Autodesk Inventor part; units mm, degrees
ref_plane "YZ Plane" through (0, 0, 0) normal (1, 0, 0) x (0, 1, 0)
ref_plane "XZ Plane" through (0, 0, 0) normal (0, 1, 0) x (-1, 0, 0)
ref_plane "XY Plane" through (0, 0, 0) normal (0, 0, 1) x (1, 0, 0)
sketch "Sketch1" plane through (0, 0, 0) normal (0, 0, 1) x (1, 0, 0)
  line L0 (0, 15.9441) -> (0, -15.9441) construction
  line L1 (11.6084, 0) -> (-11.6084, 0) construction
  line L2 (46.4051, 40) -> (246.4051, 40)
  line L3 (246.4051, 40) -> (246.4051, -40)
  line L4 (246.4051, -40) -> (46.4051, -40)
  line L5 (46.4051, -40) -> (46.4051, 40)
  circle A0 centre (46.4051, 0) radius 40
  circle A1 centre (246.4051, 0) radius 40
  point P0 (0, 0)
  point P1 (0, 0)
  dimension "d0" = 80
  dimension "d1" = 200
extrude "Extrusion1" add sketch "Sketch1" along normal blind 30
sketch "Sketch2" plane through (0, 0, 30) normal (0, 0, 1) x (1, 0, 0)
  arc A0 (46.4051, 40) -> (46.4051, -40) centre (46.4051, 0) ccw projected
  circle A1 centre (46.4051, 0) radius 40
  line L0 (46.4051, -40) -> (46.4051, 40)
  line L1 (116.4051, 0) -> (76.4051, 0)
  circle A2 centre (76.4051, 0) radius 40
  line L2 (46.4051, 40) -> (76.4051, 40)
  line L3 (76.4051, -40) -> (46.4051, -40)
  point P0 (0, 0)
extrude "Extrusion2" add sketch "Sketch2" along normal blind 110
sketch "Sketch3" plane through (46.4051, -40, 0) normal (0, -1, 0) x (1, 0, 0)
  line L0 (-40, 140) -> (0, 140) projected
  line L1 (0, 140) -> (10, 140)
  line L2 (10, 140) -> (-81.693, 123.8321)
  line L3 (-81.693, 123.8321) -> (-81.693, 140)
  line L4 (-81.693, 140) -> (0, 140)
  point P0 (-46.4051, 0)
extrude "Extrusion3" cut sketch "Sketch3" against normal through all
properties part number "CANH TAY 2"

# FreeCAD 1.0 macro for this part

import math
import FreeCAD as App
import Part
import Sketcher
from FreeCAD import Vector
Q = App.Units.Quantity


def add_polygon(sketch, points):
    """Adds a closed chain of lines whose ends are joined by coincident constraints."""
    first, n = sketch.GeometryCount, len(points)
    for a, b in zip(points, points[1:] + points[:1]):
        sketch.addGeometry(Part.LineSegment(App.Vector(*a, 0), App.Vector(*b, 0)), False)
    for i in range(n):
        sketch.addConstraint(Sketcher.Constraint("Coincident", first + i, 2, first + (i + 1) % n, 1))

doc = App.newDocument("Part")
body = doc.addObject("PartDesign::Body", "Body")

# Sketch on XY plane
sketch1 = body.newObject("Sketcher::SketchObject", "Sketch")
sketch1.AttachmentSupport = (doc.getObject("XY_Plane"), [""])
sketch1.MapMode = "FlatFace"
sketch1.addGeometry(Part.LineSegment(Vector(246, 40, 0), Vector(46, 40, 0)), False)
sketch1.addGeometry(Part.ArcOfCircle(Part.Circle(Vector(46, 0, 0), Vector(0, 0, 1), 40), math.radians(90), math.radians(270)), False)
sketch1.addGeometry(Part.LineSegment(Vector(46, -40, 0), Vector(246, -40, 0)), False)
sketch1.addGeometry(Part.ArcOfCircle(Part.Circle(Vector(246, 0, 0), Vector(0, 0, 1), 40), math.radians(-90), math.radians(90)), False)
sketch1.addConstraint(Sketcher.Constraint("Tangent", 0, 2, 1, 1))
sketch1.addConstraint(Sketcher.Constraint("Tangent", 1, 2, 2, 1))
sketch1.addConstraint(Sketcher.Constraint("Tangent", 2, 2, 3, 1))
sketch1.addConstraint(Sketcher.Constraint("Tangent", 3, 2, 0, 1))
sketch1.addConstraint(Sketcher.Constraint("Horizontal", 0))
sketch1.addConstraint(Sketcher.Constraint("Horizontal", 2))
sketch1.addConstraint(Sketcher.Constraint("PointOnObject", 1, 3, -1))
sketch1.addConstraint(Sketcher.Constraint("Radius", 1, 40.0))
sketch1.addConstraint(Sketcher.Constraint("DistanceX", 0, 2, 0, 1, 200.0))
sketch1.addConstraint(Sketcher.Constraint("DistanceX", -1, 1, 1, 3, 46.405))
pad1 = body.newObject("PartDesign::Pad", "Pad")
pad1.Profile = sketch1
pad1.Length = 30

# Sketch on XY plane
sketch2 = body.newObject("Sketcher::SketchObject", "Sketch001")
sketch2.AttachmentSupport = (doc.getObject("XY_Plane"), [""])
sketch2.MapMode = "FlatFace"
sketch2.AttachmentOffset = App.Placement(Vector(0, 0, 30), App.Rotation())
sketch2.addGeometry(Part.ArcOfCircle(Part.Circle(Vector(46, 0, 0), Vector(0, 0, 1), 40), math.radians(90), math.radians(270)), False)
sketch2.addGeometry(Part.LineSegment(Vector(46, -40, 0), Vector(76, -40, 0)), False)
sketch2.addGeometry(Part.ArcOfCircle(Part.Circle(Vector(76, 0, 0), Vector(0, 0, 1), 40), math.radians(-90), math.radians(90)), False)
sketch2.addGeometry(Part.LineSegment(Vector(76, 40, 0), Vector(46, 40, 0)), False)
sketch2.addConstraint(Sketcher.Constraint("Tangent", 0, 2, 1, 1))
sketch2.addConstraint(Sketcher.Constraint("Tangent", 1, 2, 2, 1))
sketch2.addConstraint(Sketcher.Constraint("Tangent", 2, 2, 3, 1))
sketch2.addConstraint(Sketcher.Constraint("Tangent", 3, 2, 0, 1))
sketch2.addConstraint(Sketcher.Constraint("Horizontal", 1))
sketch2.addConstraint(Sketcher.Constraint("Horizontal", 3))
sketch2.addConstraint(Sketcher.Constraint("PointOnObject", 0, 3, -1))
sketch2.addConstraint(Sketcher.Constraint("Radius", 0, 40.0))
sketch2.addConstraint(Sketcher.Constraint("DistanceX", 1, 1, 1, 2, 30.0))
sketch2.addConstraint(Sketcher.Constraint("DistanceX", -1, 1, 0, 3, 46.405))
pad2 = body.newObject("PartDesign::Pad", "Pad001")
pad2.Profile = sketch2
pad2.Length = 110

# Sketch on XZ plane
sketch3 = body.newObject("Sketcher::SketchObject", "Sketch002")
sketch3.AttachmentSupport = (doc.getObject("XZ_Plane"), [""])
sketch3.MapMode = "FlatFace"
sketch3.AttachmentOffset = App.Placement(Vector(0, 0, 40), App.Rotation())
add_polygon(sketch3, [(56, 140), (-35, 140), (-35, 124)])  # lines 0-2
sketch3.addConstraint(Sketcher.Constraint("Horizontal", 0))
sketch3.addConstraint(Sketcher.Constraint("Vertical", 1))
sketch3.addConstraint(Sketcher.Constraint("Angle", 2, Q("10 deg")))
sketch3.addConstraint(Sketcher.Constraint("DistanceY", -1, 1, 0, 2, 140.0))
sketch3.addConstraint(Sketcher.Constraint("DistanceX", 0, 2, 0, 1, 91.693))
sketch3.addConstraint(Sketcher.Constraint("DistanceX", 0, 2, -1, 1, 35.288))
pocket1 = body.newObject("PartDesign::Pocket", "Pocket")
pocket1.Profile = sketch3
pocket1.Type = "ThroughAll"

doc.recompute()
